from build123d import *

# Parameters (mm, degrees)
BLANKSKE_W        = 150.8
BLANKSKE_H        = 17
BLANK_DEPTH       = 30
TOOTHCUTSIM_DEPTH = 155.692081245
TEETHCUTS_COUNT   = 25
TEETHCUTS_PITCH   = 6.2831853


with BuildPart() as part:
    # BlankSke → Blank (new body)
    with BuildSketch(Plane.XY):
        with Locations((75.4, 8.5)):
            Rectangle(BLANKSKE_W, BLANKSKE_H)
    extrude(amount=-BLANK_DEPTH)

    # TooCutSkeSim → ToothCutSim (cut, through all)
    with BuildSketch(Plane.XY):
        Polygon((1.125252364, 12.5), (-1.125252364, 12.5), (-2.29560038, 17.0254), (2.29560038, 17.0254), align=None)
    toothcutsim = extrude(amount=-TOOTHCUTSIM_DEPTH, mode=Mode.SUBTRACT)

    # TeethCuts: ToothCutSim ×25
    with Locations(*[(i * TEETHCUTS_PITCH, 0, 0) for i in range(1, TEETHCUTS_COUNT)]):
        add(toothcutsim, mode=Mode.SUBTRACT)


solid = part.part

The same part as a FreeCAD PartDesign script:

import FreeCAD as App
import Part
import Sketcher
Q = App.Units.Quantity


def add_polygon(sketch, points):
    """Adds a closed chain of lines whose ends are joined by coincident constraints."""
    first, n = sketch.GeometryCount, len(points)
    for a, b in zip(points, points[1:] + points[:1]):
        sketch.addGeometry(Part.LineSegment(App.Vector(*a, 0), App.Vector(*b, 0)), False)
    for i in range(n):
        sketch.addConstraint(Sketcher.Constraint("Coincident", first + i, 2, first + (i + 1) % n, 1))

doc = App.newDocument("Part")
body = doc.addObject("PartDesign::Body", "Body")

# Sketch on XY plane
sketch1 = doc.addObject("Sketcher::SketchObject", "Sketch")
body.addObject(sketch1)
sketch1.AttachmentSupport = (doc.XY_Plane, [""])
sketch1.MapMode = "FlatFace"
add_polygon(sketch1, [(0, 17), (0, 0), (150.8, 0), (150.8, 17)])  # lines 0-3
sketch1.addConstraint([
    Sketcher.Constraint("Vertical", 0),
    Sketcher.Constraint("Horizontal", 1),
    Sketcher.Constraint("Vertical", 2),
    Sketcher.Constraint("Horizontal", 3),
    Sketcher.Constraint("Coincident", 0, 2, -1, 1),
    Sketcher.Constraint("DistanceY", 0, 2, 0, 1, Q("17 mm")),
    Sketcher.Constraint("DistanceX", 1, 1, 1, 2, Q("150.8 mm")),
])
pad1 = doc.addObject("PartDesign::Pad", "Pad")
body.addObject(pad1)
pad1.Profile = sketch1
pad1.Length = 30
pad1.Reversed = True

# Sketch on XY plane
sketch2 = doc.addObject("Sketcher::SketchObject", "Sketch001")
body.addObject(sketch2)
sketch2.AttachmentSupport = (doc.XY_Plane, [""])
sketch2.MapMode = "FlatFace"
add_polygon(sketch2, [(-1.125252, 12.5), (1.125252, 12.5), (2.2956, 17.0254), (-2.2956, 17.0254)])  # lines 0-3
sketch2.addConstraint([
    Sketcher.Constraint("Horizontal", 0),
    Sketcher.Constraint("Horizontal", 2),
    Sketcher.Constraint("Equal", 1, 3),
    Sketcher.Constraint("Angle", 1, Q("75.5 deg")),
    Sketcher.Constraint("DistanceY", -1, 1, 0, 2, Q("12.5 mm")),
    Sketcher.Constraint("DistanceX", 2, 2, 2, 1, Q("4.591201 mm")),
    Sketcher.Constraint("DistanceX", -1, 1, 1, 2, Q("2.2956 mm")),
    Sketcher.Constraint("DistanceY", -1, 1, 1, 2, Q("17.0254 mm")),
])
pocket1 = doc.addObject("PartDesign::Pocket", "Pocket")
body.addObject(pocket1)
pocket1.Profile = sketch2
pocket1.Type = "ThroughAll"
doc.recompute()

linearpattern = doc.addObject("PartDesign::LinearPattern", "LinearPattern")
body.addObject(linearpattern)
linearpattern.Originals = [pocket1]
linearpattern.Direction = (doc.X_Axis, [""])
linearpattern.Mode = "offset"
linearpattern.Offset = 6.283185
linearpattern.Occurrences = 25
body.Tip = linearpattern

doc.recompute()
